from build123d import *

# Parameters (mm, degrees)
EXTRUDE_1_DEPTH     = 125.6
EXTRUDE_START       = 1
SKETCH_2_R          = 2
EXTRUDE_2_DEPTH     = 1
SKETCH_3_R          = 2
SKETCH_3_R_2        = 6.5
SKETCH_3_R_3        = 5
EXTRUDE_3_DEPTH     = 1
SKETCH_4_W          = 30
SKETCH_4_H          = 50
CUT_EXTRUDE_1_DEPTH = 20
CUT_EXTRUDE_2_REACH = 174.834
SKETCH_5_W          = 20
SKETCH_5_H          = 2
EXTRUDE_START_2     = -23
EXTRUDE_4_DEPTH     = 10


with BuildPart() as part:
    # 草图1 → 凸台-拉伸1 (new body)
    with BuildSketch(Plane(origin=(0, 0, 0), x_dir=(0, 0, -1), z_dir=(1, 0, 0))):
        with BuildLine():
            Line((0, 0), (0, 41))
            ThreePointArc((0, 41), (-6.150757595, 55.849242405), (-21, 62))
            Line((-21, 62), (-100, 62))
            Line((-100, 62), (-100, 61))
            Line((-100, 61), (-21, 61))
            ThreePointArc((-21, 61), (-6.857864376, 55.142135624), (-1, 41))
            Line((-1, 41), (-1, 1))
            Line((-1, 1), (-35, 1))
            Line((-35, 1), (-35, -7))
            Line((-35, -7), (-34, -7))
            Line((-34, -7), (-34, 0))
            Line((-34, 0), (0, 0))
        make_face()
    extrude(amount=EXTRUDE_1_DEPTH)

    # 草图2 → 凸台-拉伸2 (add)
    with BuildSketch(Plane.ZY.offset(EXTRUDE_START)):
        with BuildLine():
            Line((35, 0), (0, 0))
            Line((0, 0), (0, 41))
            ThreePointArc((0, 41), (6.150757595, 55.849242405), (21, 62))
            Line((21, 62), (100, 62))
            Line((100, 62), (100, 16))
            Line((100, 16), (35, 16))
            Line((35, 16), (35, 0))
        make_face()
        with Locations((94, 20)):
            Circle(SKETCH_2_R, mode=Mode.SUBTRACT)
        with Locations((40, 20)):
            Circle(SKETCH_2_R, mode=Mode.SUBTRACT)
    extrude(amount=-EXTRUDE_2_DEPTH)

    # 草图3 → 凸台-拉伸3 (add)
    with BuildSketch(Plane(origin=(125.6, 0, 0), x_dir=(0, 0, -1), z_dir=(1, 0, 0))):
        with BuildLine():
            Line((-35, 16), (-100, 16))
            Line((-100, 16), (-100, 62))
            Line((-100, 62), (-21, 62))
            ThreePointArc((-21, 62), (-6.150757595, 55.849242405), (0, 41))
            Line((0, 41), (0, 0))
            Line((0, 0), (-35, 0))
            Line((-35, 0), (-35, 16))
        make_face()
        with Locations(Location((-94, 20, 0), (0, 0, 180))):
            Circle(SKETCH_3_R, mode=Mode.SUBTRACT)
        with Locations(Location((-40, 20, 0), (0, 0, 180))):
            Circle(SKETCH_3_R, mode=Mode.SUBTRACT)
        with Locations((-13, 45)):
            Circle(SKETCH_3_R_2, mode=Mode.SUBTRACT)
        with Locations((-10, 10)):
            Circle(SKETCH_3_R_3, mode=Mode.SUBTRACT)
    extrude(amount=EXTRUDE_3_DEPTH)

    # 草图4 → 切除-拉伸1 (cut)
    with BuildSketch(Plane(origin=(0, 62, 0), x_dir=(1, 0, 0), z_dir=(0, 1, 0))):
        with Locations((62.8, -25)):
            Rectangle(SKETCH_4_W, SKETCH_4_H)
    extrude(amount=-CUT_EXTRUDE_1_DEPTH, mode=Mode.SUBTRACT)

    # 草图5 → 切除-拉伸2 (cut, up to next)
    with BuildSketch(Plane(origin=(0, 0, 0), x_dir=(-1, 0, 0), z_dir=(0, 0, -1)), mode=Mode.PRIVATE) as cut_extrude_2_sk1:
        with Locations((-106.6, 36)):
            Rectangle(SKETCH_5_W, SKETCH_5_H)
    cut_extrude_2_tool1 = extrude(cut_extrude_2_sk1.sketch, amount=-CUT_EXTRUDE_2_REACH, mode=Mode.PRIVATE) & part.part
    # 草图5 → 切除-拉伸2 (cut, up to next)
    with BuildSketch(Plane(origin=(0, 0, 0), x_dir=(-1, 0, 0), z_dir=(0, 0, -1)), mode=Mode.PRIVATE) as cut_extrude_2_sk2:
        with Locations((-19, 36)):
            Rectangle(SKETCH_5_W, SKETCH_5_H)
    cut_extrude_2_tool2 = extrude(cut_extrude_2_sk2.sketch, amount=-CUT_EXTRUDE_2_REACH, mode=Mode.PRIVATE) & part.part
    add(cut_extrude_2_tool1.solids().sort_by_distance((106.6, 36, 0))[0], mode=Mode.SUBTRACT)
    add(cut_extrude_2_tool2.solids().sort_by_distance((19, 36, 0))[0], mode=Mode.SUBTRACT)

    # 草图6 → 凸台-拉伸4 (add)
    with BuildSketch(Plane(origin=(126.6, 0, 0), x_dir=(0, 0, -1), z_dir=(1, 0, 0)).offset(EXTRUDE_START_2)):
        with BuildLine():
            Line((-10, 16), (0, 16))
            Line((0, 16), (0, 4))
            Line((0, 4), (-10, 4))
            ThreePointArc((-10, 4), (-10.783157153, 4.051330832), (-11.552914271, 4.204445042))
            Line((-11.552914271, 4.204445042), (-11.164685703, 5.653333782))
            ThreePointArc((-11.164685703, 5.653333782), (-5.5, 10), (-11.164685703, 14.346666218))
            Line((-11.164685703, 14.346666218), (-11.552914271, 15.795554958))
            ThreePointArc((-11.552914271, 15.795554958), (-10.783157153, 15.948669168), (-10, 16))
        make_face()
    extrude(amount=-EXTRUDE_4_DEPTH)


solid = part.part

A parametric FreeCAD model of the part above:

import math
import FreeCAD as App
import Part
import Sketcher
Q = App.Units.Quantity

doc = App.newDocument("Part")
body = doc.addObject("PartDesign::Body", "Body")

# Sketch on YZ plane
sketch1 = body.newObject("Sketcher::SketchObject", "Sketch")
sketch1.AttachmentSupport = (doc.getObject("YZ_Plane"), [""])
sketch1.MapMode = "FlatFace"
sketch1.addGeometry(Part.LineSegment(App.Vector(0, 0, 0), App.Vector(41, 0, 0)), False)
sketch1.addGeometry(Part.ArcOfCircle(Part.Circle(App.Vector(41, 21, 0), App.Vector(0, 0, 1), 21), math.radians(-90), math.radians(0)), False)
sketch1.addGeometry(Part.LineSegment(App.Vector(62, 21, 0), App.Vector(62, 100, 0)), False)
sketch1.addGeometry(Part.LineSegment(App.Vector(62, 100, 0), App.Vector(61, 100, 0)), False)
sketch1.addGeometry(Part.LineSegment(App.Vector(61, 100, 0), App.Vector(61, 21, 0)), False)
sketch1.addGeometry(Part.ArcOfCircle(Part.Circle(App.Vector(41, 21, 0), App.Vector(0, 0, 1), 20), math.radians(-90), math.radians(0)), False)
sketch1.addGeometry(Part.LineSegment(App.Vector(41, 1, 0), App.Vector(1, 1, 0)), False)
sketch1.addGeometry(Part.LineSegment(App.Vector(1, 1, 0), App.Vector(1, 35, 0)), False)
sketch1.addGeometry(Part.LineSegment(App.Vector(1, 35, 0), App.Vector(-7, 35, 0)), False)
sketch1.addGeometry(Part.LineSegment(App.Vector(-7, 35, 0), App.Vector(-7, 34, 0)), False)
sketch1.addGeometry(Part.LineSegment(App.Vector(-7, 34, 0), App.Vector(0, 34, 0)), False)
sketch1.addGeometry(Part.LineSegment(App.Vector(0, 34, 0), App.Vector(0, 0, 0)), False)
sketch1.addConstraint(Sketcher.Constraint("Tangent", 0, 2, 1, 1))
sketch1.addConstraint(Sketcher.Constraint("Tangent", 1, 2, 2, 1))
sketch1.addConstraint(Sketcher.Constraint("Coincident", 2, 2, 3, 1))
sketch1.addConstraint(Sketcher.Constraint("Coincident", 3, 2, 4, 1))
sketch1.addConstraint(Sketcher.Constraint("Tangent", 4, 2, 5, 2))
sketch1.addConstraint(Sketcher.Constraint("Tangent", 5, 1, 6, 1))
sketch1.addConstraint(Sketcher.Constraint("Coincident", 6, 2, 7, 1))
sketch1.addConstraint(Sketcher.Constraint("Coincident", 7, 2, 8, 1))
sketch1.addConstraint(Sketcher.Constraint("Coincident", 8, 2, 9, 1))
sketch1.addConstraint(Sketcher.Constraint("Coincident", 9, 2, 10, 1))
sketch1.addConstraint(Sketcher.Constraint("Coincident", 10, 2, 11, 1))
sketch1.addConstraint(Sketcher.Constraint("Coincident", 11, 2, 0, 1))
sketch1.addConstraint(Sketcher.Constraint("Horizontal", 0))
sketch1.addConstraint(Sketcher.Constraint("Vertical", 2))
sketch1.addConstraint(Sketcher.Constraint("Horizontal", 3))
sketch1.addConstraint(Sketcher.Constraint("Vertical", 4))
sketch1.addConstraint(Sketcher.Constraint("Horizontal", 6))
sketch1.addConstraint(Sketcher.Constraint("Vertical", 7))
sketch1.addConstraint(Sketcher.Constraint("Horizontal", 8))
sketch1.addConstraint(Sketcher.Constraint("Vertical", 9))
sketch1.addConstraint(Sketcher.Constraint("Horizontal", 10))
sketch1.addConstraint(Sketcher.Constraint("Vertical", 11))
sketch1.addConstraint(Sketcher.Constraint("Coincident", 11, 2, -1, 1))
sketch1.addConstraint(Sketcher.Constraint("Coincident", 5, 3, 1, 3))
sketch1.addConstraint(Sketcher.Constraint("Equal", 3, 9))
sketch1.addConstraint(Sketcher.Constraint("Radius", 1, 21.0))
sketch1.addConstraint(Sketcher.Constraint("Radius", 5, 20.0))
sketch1.addConstraint(Sketcher.Constraint("DistanceX", 0, 1, 0, 2, 41.0))
sketch1.addConstraint(Sketcher.Constraint("DistanceX", 6, 2, 6, 1, 40.0))
sketch1.addConstraint(Sketcher.Constraint("DistanceX", 8, 2, 8, 1, 8.0))
sketch1.addConstraint(Sketcher.Constraint("DistanceY", 2, 1, 2, 2, 79.0))
sketch1.addConstraint(Sketcher.Constraint("DistanceY", 7, 1, 7, 2, 34.0))
pad1 = body.newObject("PartDesign::Pad", "Pad")
pad1.Profile = sketch1
pad1.Length = 125.6

# Sketch on YZ plane
sketch2 = body.newObject("Sketcher::SketchObject", "Sketch001")
sketch2.AttachmentSupport = (doc.getObject("YZ_Plane"), [""])
sketch2.MapMode = "FlatFace"
sketch2.AttachmentOffset = App.Placement(App.Vector(0, 0, -1), App.Rotation())
sketch2.addGeometry(Part.LineSegment(App.Vector(0, 0, 0), App.Vector(0, 35, 0)), False)
sketch2.addGeometry(Part.LineSegment(App.Vector(0, 35, 0), App.Vector(16, 35, 0)), False)
sketch2.addGeometry(Part.LineSegment(App.Vector(16, 35, 0), App.Vector(16, 100, 0)), False)
sketch2.addGeometry(Part.LineSegment(App.Vector(16, 100, 0), App.Vector(62, 100, 0)), False)
sketch2.addGeometry(Part.LineSegment(App.Vector(62, 100, 0), App.Vector(62, 21, 0)), False)
sketch2.addGeometry(Part.ArcOfCircle(Part.Circle(App.Vector(41, 21, 0), App.Vector(0, 0, 1), 21), math.radians(-90), math.radians(0)), False)
sketch2.addGeometry(Part.LineSegment(App.Vector(41, 0, 0), App.Vector(0, 0, 0)), False)
sketch2.addGeometry(Part.Circle(App.Vector(20, 94, 0), App.Vector(0, 0, 1), 2), False)
sketch2.addGeometry(Part.Circle(App.Vector(20, 40, 0), App.Vector(0, 0, 1), 2), False)
sketch2.addConstraint(Sketcher.Constraint("Coincident", 0, 2, 1, 1))
sketch2.addConstraint(Sketcher.Constraint("Coincident", 1, 2, 2, 1))
sketch2.addConstraint(Sketcher.Constraint("Coincident", 2, 2, 3, 1))
sketch2.addConstraint(Sketcher.Constraint("Coincident", 3, 2, 4, 1))
sketch2.addConstraint(Sketcher.Constraint("Tangent", 4, 2, 5, 2))
sketch2.addConstraint(Sketcher.Constraint("Tangent", 5, 1, 6, 1))
sketch2.addConstraint(Sketcher.Constraint("Coincident", 6, 2, 0, 1))
sketch2.addConstraint(Sketcher.Constraint("Vertical", 0))
sketch2.addConstraint(Sketcher.Constraint("Horizontal", 1))
sketch2.addConstraint(Sketcher.Constraint("Vertical", 2))
sketch2.addConstraint(Sketcher.Constraint("Horizontal", 3))
sketch2.addConstraint(Sketcher.Constraint("Vertical", 4))
sketch2.addConstraint(Sketcher.Constraint("Horizontal", 6))
sketch2.addConstraint(Sketcher.Constraint("Coincident", 6, 2, -1, 1))
sketch2.addConstraint(Sketcher.Constraint("Equal", 7, 8))
sketch2.addConstraint(Sketcher.Constraint("Vertical", 7, 3, 8, 3))
sketch2.addConstraint(Sketcher.Constraint("Diameter", 7, 4.0))
sketch2.addConstraint(Sketcher.Constraint("Radius", 5, 21.0))
sketch2.addConstraint(Sketcher.Constraint("DistanceX", 1, 1, 1, 2, 16.0))
sketch2.addConstraint(Sketcher.Constraint("DistanceX", 3, 1, 3, 2, 46.0))
sketch2.addConstraint(Sketcher.Constraint("DistanceY", 0, 1, 0, 2, 35.0))
sketch2.addConstraint(Sketcher.Constraint("DistanceY", 2, 1, 2, 2, 65.0))
sketch2.addConstraint(Sketcher.Constraint("DistanceX", -1, 1, 7, 3, 20.0))
sketch2.addConstraint(Sketcher.Constraint("DistanceY", -1, 1, 7, 3, 94.0))
sketch2.addConstraint(Sketcher.Constraint("DistanceY", -1, 1, 8, 3, 40.0))
pad2 = body.newObject("PartDesign::Pad", "Pad001")
pad2.Profile = sketch2
pad2.Length = 1

# Sketch on YZ plane
sketch3 = body.newObject("Sketcher::SketchObject", "Sketch002")
sketch3.AttachmentSupport = (doc.getObject("YZ_Plane"), [""])
sketch3.MapMode = "FlatFace"
sketch3.AttachmentOffset = App.Placement(App.Vector(0, 0, 125.6), App.Rotation())
sketch3.addGeometry(Part.LineSegment(App.Vector(16, 100, 0), App.Vector(16, 35, 0)), False)
sketch3.addGeometry(Part.LineSegment(App.Vector(16, 35, 0), App.Vector(0, 35, 0)), False)
sketch3.addGeometry(Part.LineSegment(App.Vector(0, 35, 0), App.Vector(0, 0, 0)), False)
sketch3.addGeometry(Part.LineSegment(App.Vector(0, 0, 0), App.Vector(41, 0, 0)), False)
sketch3.addGeometry(Part.ArcOfCircle(Part.Circle(App.Vector(41, 21, 0), App.Vector(0, 0, 1), 21), math.radians(-90), math.radians(0)), False)
sketch3.addGeometry(Part.LineSegment(App.Vector(62, 21, 0), App.Vector(62, 100, 0)), False)
sketch3.addGeometry(Part.LineSegment(App.Vector(62, 100, 0), App.Vector(16, 100, 0)), False)
sketch3.addGeometry(Part.Circle(App.Vector(10, 10, 0), App.Vector(0, 0, 1), 5), False)
sketch3.addGeometry(Part.Circle(App.Vector(20, 40, 0), App.Vector(0, 0, 1), 2), False)
sketch3.addGeometry(Part.Circle(App.Vector(20, 94, 0), App.Vector(0, 0, 1), 2), False)
sketch3.addGeometry(Part.Circle(App.Vector(45, 13, 0), App.Vector(0, 0, 1), 6.5), False)
sketch3.addConstraint(Sketcher.Constraint("Coincident", 0, 2, 1, 1))
sketch3.addConstraint(Sketcher.Constraint("Coincident", 1, 2, 2, 1))
sketch3.addConstraint(Sketcher.Constraint("Coincident", 2, 2, 3, 1))
sketch3.addConstraint(Sketcher.Constraint("Tangent", 3, 2, 4, 1))
sketch3.addConstraint(Sketcher.Constraint("Tangent", 4, 2, 5, 1))
sketch3.addConstraint(Sketcher.Constraint("Coincident", 5, 2, 6, 1))
sketch3.addConstraint(Sketcher.Constraint("Coincident", 6, 2, 0, 1))
sketch3.addConstraint(Sketcher.Constraint("Vertical", 0))
sketch3.addConstraint(Sketcher.Constraint("Horizontal", 1))
sketch3.addConstraint(Sketcher.Constraint("Vertical", 2))
sketch3.addConstraint(Sketcher.Constraint("Horizontal", 3))
sketch3.addConstraint(Sketcher.Constraint("Vertical", 5))
sketch3.addConstraint(Sketcher.Constraint("Horizontal", 6))
sketch3.addConstraint(Sketcher.Constraint("Coincident", 2, 2, -1, 1))
sketch3.addConstraint(Sketcher.Constraint("Equal", 8, 9))
sketch3.addConstraint(Sketcher.Constraint("Vertical", 8, 3, 9, 3))
sketch3.addConstraint(Sketcher.Constraint("Diameter", 7, 10.0))
sketch3.addConstraint(Sketcher.Constraint("Diameter", 8, 4.0))
sketch3.addConstraint(Sketcher.Constraint("Diameter", 10, 13.0))
sketch3.addConstraint(Sketcher.Constraint("Radius", 4, 21.0))
sketch3.addConstraint(Sketcher.Constraint("DistanceX", 1, 2, 1, 1, 16.0))
sketch3.addConstraint(Sketcher.Constraint("DistanceX", 3, 1, 3, 2, 41.0))
sketch3.addConstraint(Sketcher.Constraint("DistanceY", 0, 2, 0, 1, 65.0))
sketch3.addConstraint(Sketcher.Constraint("DistanceY", 2, 2, 2, 1, 35.0))
sketch3.addConstraint(Sketcher.Constraint("DistanceX", -1, 1, 7, 3, 10.0))
sketch3.addConstraint(Sketcher.Constraint("DistanceY", -1, 1, 7, 3, 10.0))
sketch3.addConstraint(Sketcher.Constraint("DistanceX", -1, 1, 8, 3, 20.0))
sketch3.addConstraint(Sketcher.Constraint("DistanceY", -1, 1, 8, 3, 40.0))
sketch3.addConstraint(Sketcher.Constraint("DistanceY", -1, 1, 9, 3, 94.0))
sketch3.addConstraint(Sketcher.Constraint("DistanceX", -1, 1, 10, 3, 45.0))
sketch3.addConstraint(Sketcher.Constraint("DistanceY", -1, 1, 10, 3, 13.0))
pad3 = body.newObject("PartDesign::Pad", "Pad002")
pad3.Profile = sketch3
pad3.Length = 1

# Sketch on XZ plane
sketch4 = body.newObject("Sketcher::SketchObject", "Sketch003")
sketch4.AttachmentSupport = (doc.getObject("XZ_Plane"), [""])
sketch4.MapMode = "FlatFace"
sketch4.AttachmentOffset = App.Placement(App.Vector(0, 0, -62), App.Rotation())
sketch4.addGeometry(Part.LineSegment(App.Vector(47.8, 0, 0), App.Vector(47.8, 50, 0)), False)
sketch4.addGeometry(Part.LineSegment(App.Vector(47.8, 50, 0), App.Vector(77.8, 50, 0)), False)
sketch4.addGeometry(Part.LineSegment(App.Vector(77.8, 50, 0), App.Vector(77.8, 0, 0)), False)
sketch4.addGeometry(Part.LineSegment(App.Vector(77.8, 0, 0), App.Vector(47.8, 0, 0)), False)
sketch4.addConstraint(Sketcher.Constraint("Coincident", 0, 2, 1, 1))
sketch4.addConstraint(Sketcher.Constraint("Coincident", 1, 2, 2, 1))
sketch4.addConstraint(Sketcher.Constraint("Coincident", 2, 2, 3, 1))
sketch4.addConstraint(Sketcher.Constraint("Coincident", 3, 2, 0, 1))
sketch4.addConstraint(Sketcher.Constraint("Vertical", 0))
sketch4.addConstraint(Sketcher.Constraint("Horizontal", 1))
sketch4.addConstraint(Sketcher.Constraint("Vertical", 2))
sketch4.addConstraint(Sketcher.Constraint("Horizontal", 3))
sketch4.addConstraint(Sketcher.Constraint("PointOnObject", 2, 2, -1))
sketch4.addConstraint(Sketcher.Constraint("DistanceX", 1, 1, 1, 2, 30.0))
sketch4.addConstraint(Sketcher.Constraint("DistanceY", 0, 1, 0, 2, 50.0))
sketch4.addConstraint(Sketcher.Constraint("DistanceX", -1, 1, 0, 2, 47.8))
pocket1 = body.newObject("PartDesign::Pocket", "Pocket")
pocket1.Profile = sketch4
pocket1.Length = 20
pocket1.Reversed = True

# Sketch on XY plane
sketch5 = body.newObject("Sketcher::SketchObject", "Sketch004")
sketch5.AttachmentSupport = (doc.getObject("XY_Plane"), [""])
sketch5.MapMode = "FlatFace"
sketch5.addGeometry(Part.LineSegment(App.Vector(116.6, 37, 0), App.Vector(116.6, 35, 0)), False)
sketch5.addGeometry(Part.LineSegment(App.Vector(116.6, 35, 0), App.Vector(96.6, 35, 0)), False)
sketch5.addGeometry(Part.LineSegment(App.Vector(96.6, 35, 0), App.Vector(96.6, 37, 0)), False)
sketch5.addGeometry(Part.LineSegment(App.Vector(96.6, 37, 0), App.Vector(116.6, 37, 0)), False)
sketch5.addConstraint(Sketcher.Constraint("Coincident", 0, 2, 1, 1))
sketch5.addConstraint(Sketcher.Constraint("Coincident", 1, 2, 2, 1))
sketch5.addConstraint(Sketcher.Constraint("Coincident", 2, 2, 3, 1))
sketch5.addConstraint(Sketcher.Constraint("Coincident", 3, 2, 0, 1))
sketch5.addConstraint(Sketcher.Constraint("Vertical", 0))
sketch5.addConstraint(Sketcher.Constraint("Horizontal", 1))
sketch5.addConstraint(Sketcher.Constraint("Vertical", 2))
sketch5.addConstraint(Sketcher.Constraint("Horizontal", 3))
sketch5.addConstraint(Sketcher.Constraint("DistanceX", 1, 2, 1, 1, 20.0))
sketch5.addConstraint(Sketcher.Constraint("DistanceY", 0, 2, 0, 1, 2.0))
sketch5.addConstraint(Sketcher.Constraint("DistanceY", -1, 1, 0, 2, 35.0))
sketch5.addConstraint(Sketcher.Constraint("DistanceX", -1, 1, 0, 2, 116.6))
pocket2 = body.newObject("PartDesign::Pocket", "Pocket001")
pocket2.Profile = sketch5
pocket2.Type = "UpToFirst"
pocket2.Reversed = True

# Sketch on XY plane
sketch6 = body.newObject("Sketcher::SketchObject", "Sketch005")
sketch6.AttachmentSupport = (doc.getObject("XY_Plane"), [""])
sketch6.MapMode = "FlatFace"
sketch6.addGeometry(Part.LineSegment(App.Vector(29, 37, 0), App.Vector(29, 35, 0)), False)
sketch6.addGeometry(Part.LineSegment(App.Vector(29, 35, 0), App.Vector(9, 35, 0)), False)
sketch6.addGeometry(Part.LineSegment(App.Vector(9, 35, 0), App.Vector(9, 37, 0)), False)
sketch6.addGeometry(Part.LineSegment(App.Vector(9, 37, 0), App.Vector(29, 37, 0)), False)
sketch6.addConstraint(Sketcher.Constraint("Coincident", 0, 2, 1, 1))
sketch6.addConstraint(Sketcher.Constraint("Coincident", 1, 2, 2, 1))
sketch6.addConstraint(Sketcher.Constraint("Coincident", 2, 2, 3, 1))
sketch6.addConstraint(Sketcher.Constraint("Coincident", 3, 2, 0, 1))
sketch6.addConstraint(Sketcher.Constraint("Vertical", 0))
sketch6.addConstraint(Sketcher.Constraint("Horizontal", 1))
sketch6.addConstraint(Sketcher.Constraint("Vertical", 2))
sketch6.addConstraint(Sketcher.Constraint("Horizontal", 3))
sketch6.addConstraint(Sketcher.Constraint("DistanceX", 1, 2, 1, 1, 20.0))
sketch6.addConstraint(Sketcher.Constraint("DistanceY", 0, 2, 0, 1, 2.0))
sketch6.addConstraint(Sketcher.Constraint("DistanceX", -1, 1, 0, 2, 29.0))
sketch6.addConstraint(Sketcher.Constraint("DistanceY", -1, 1, 0, 2, 35.0))
pocket3 = body.newObject("PartDesign::Pocket", "Pocket002")
pocket3.Profile = sketch6
pocket3.Type = "UpToFirst"
pocket3.Reversed = True

# Sketch on YZ plane
sketch7 = body.newObject("Sketcher::SketchObject", "Sketch006")
sketch7.AttachmentSupport = (doc.getObject("YZ_Plane"), [""])
sketch7.MapMode = "FlatFace"
sketch7.AttachmentOffset = App.Placement(App.Vector(0, 0, 103.6), App.Rotation())
sketch7.addGeometry(Part.LineSegment(App.Vector(16, 0, 0), App.Vector(16, 10, 0)), False)
sketch7.addGeometry(Part.ArcOfCircle(Part.Circle(App.Vector(10, 10, 0), App.Vector(0, 0, 1), 6), math.radians(0), math.radians(15)), False)
sketch7.addGeometry(Part.LineSegment(App.Vector(15.795555, 11.552914, 0), App.Vector(14.346666, 11.164686, 0)), False)
sketch7.addGeometry(Part.ArcOfCircle(Part.Circle(App.Vector(10, 10, 0), App.Vector(0, 0, 1), 4.5), math.radians(165), math.radians(375)), False)
sketch7.addGeometry(Part.LineSegment(App.Vector(5.653334, 11.164686, 0), App.Vector(4.204445, 11.552914, 0)), False)
sketch7.addGeometry(Part.ArcOfCircle(Part.Circle(App.Vector(10, 10, 0), App.Vector(0, 0, 1), 6), math.radians(165), math.radians(180)), False)
sketch7.addGeometry(Part.LineSegment(App.Vector(4, 10, 0), App.Vector(4, 0, 0)), False)
sketch7.addGeometry(Part.LineSegment(App.Vector(4, 0, 0), App.Vector(16, 0, 0)), False)
sketch7.addConstraint(Sketcher.Constraint("Tangent", 0, 2, 1, 1))
sketch7.addConstraint(Sketcher.Constraint("Coincident", 1, 2, 2, 1))
sketch7.addConstraint(Sketcher.Constraint("Coincident", 2, 2, 3, 2))
sketch7.addConstraint(Sketcher.Constraint("Coincident", 3, 1, 4, 1))
sketch7.addConstraint(Sketcher.Constraint("Coincident", 4, 2, 5, 1))
sketch7.addConstraint(Sketcher.Constraint("Tangent", 5, 2, 6, 1))
sketch7.addConstraint(Sketcher.Constraint("Coincident", 6, 2, 7, 1))
sketch7.addConstraint(Sketcher.Constraint("Coincident", 7, 2, 0, 1))
sketch7.addConstraint(Sketcher.Constraint("Vertical", 0))
sketch7.addConstraint(Sketcher.Constraint("Vertical", 6))
sketch7.addConstraint(Sketcher.Constraint("Horizontal", 7))
sketch7.addConstraint(Sketcher.Constraint("Coincident", 3, 3, 1, 3))
sketch7.addConstraint(Sketcher.Constraint("Coincident", 5, 3, 1, 3))
sketch7.addConstraint(Sketcher.Constraint("Equal", 1, 5))
sketch7.addConstraint(Sketcher.Constraint("PointOnObject", 6, 2, -1))
sketch7.addConstraint(Sketcher.Constraint("Horizontal", 2, 2, 3, 1))
sketch7.addConstraint(Sketcher.Constraint("Horizontal", 1, 2, 4, 2))
sketch7.addConstraint(Sketcher.Constraint("Radius", 1, 6.0))
sketch7.addConstraint(Sketcher.Constraint("Radius", 3, 4.5))
sketch7.addConstraint(Sketcher.Constraint("DistanceY", 0, 1, 0, 2, 10.0))
sketch7.addConstraint(Sketcher.Constraint("Angle", 2, Q("-165 deg")))
sketch7.addConstraint(Sketcher.Constraint("DistanceX", -1, 1, 1, 3, 10.0))
sketch7.addConstraint(Sketcher.Constraint("DistanceX", 3, 1, 1, 2, 10.142221))
pad4 = body.newObject("PartDesign::Pad", "Pad003")
pad4.Profile = sketch7
pad4.Length = 10
pad4.Reversed = True

doc.recompute()
